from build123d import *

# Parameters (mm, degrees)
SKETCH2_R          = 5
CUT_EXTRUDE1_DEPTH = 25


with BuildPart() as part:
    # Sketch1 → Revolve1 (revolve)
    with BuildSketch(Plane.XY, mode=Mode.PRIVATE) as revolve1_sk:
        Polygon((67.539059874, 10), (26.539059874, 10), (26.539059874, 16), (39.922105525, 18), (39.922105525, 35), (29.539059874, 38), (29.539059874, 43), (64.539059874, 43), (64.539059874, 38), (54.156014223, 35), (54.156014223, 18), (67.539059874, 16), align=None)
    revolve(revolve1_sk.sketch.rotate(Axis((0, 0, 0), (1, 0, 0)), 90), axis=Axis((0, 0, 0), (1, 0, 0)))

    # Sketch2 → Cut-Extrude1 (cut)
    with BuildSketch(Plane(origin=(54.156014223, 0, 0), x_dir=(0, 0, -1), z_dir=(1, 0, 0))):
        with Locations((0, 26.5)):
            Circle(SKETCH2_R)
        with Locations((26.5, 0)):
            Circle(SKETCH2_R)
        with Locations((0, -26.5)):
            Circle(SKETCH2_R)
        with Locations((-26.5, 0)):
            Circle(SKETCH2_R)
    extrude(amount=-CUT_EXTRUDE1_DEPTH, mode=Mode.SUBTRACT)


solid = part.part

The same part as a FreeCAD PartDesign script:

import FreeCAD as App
import Part
import Sketcher

doc = App.newDocument("Part")
body = doc.addObject("PartDesign::Body", "Body")

sketch1 = doc.addObject("Sketcher::SketchObject", "Sketch")
body.addObject(sketch1)
sketch1.AttachmentSupport = (doc.XY_Plane, [""])
sketch1.MapMode = "FlatFace"
sketch1.addGeometry([
    Part.LineSegment(App.Vector(27, 10, 0), App.Vector(68, 10, 0)),
    Part.LineSegment(App.Vector(68, 10, 0), App.Vector(68, 16, 0)),
    Part.LineSegment(App.Vector(68, 16, 0), App.Vector(54, 18, 0)),
    Part.LineSegment(App.Vector(54, 18, 0), App.Vector(54, 35, 0)),
    Part.LineSegment(App.Vector(54, 35, 0), App.Vector(65, 38, 0)),
    Part.LineSegment(App.Vector(65, 38, 0), App.Vector(65, 43, 0)),
    Part.LineSegment(App.Vector(65, 43, 0), App.Vector(30, 43, 0)),
    Part.LineSegment(App.Vector(30, 43, 0), App.Vector(30, 38, 0)),
    Part.LineSegment(App.Vector(30, 38, 0), App.Vector(40, 35, 0)),
    Part.LineSegment(App.Vector(40, 35, 0), App.Vector(40, 18, 0)),
    Part.LineSegment(App.Vector(40, 18, 0), App.Vector(27, 16, 0)),
    Part.LineSegment(App.Vector(27, 16, 0), App.Vector(27, 10, 0)),
], False)
sketch1.addConstraint([
    Sketcher.Constraint("Coincident", 0, 2, 1, 1),
    Sketcher.Constraint("Coincident", 1, 2, 2, 1),
    Sketcher.Constraint("Coincident", 2, 2, 3, 1),
    Sketcher.Constraint("Coincident", 3, 2, 4, 1),
    Sketcher.Constraint("Coincident", 4, 2, 5, 1),
    Sketcher.Constraint("Coincident", 5, 2, 6, 1),
    Sketcher.Constraint("Coincident", 6, 2, 7, 1),
    Sketcher.Constraint("Coincident", 7, 2, 8, 1),
    Sketcher.Constraint("Coincident", 8, 2, 9, 1),
    Sketcher.Constraint("Coincident", 9, 2, 10, 1),
    Sketcher.Constraint("Coincident", 10, 2, 11, 1),
    Sketcher.Constraint("Coincident", 11, 2, 0, 1),
    Sketcher.Constraint("Horizontal", 0),
    Sketcher.Constraint("Vertical", 1),
    Sketcher.Constraint("Vertical", 3),
    Sketcher.Constraint("Vertical", 5),
    Sketcher.Constraint("Horizontal", 6),
    Sketcher.Constraint("Vertical", 7),
    Sketcher.Constraint("Vertical", 9),
    Sketcher.Constraint("Vertical", 11),
    Sketcher.Constraint("Horizontal", 4, 2, 7, 2),
    Sketcher.Constraint("Horizontal", 3, 2, 8, 2),
    Sketcher.Constraint("Horizontal", 2, 2, 9, 2),
    Sketcher.Constraint("Horizontal", 1, 2, 10, 2),
    Sketcher.Constraint("Equal", 4, 8),
    Sketcher.Constraint("Equal", 2, 10),
    Sketcher.Constraint("DistanceX", 0, 1, 0, 2, 41.0),
    Sketcher.Constraint("DistanceX", 6, 2, 6, 1, 35.0),
    Sketcher.Constraint("DistanceY", 1, 1, 1, 2, 6.0),
    Sketcher.Constraint("DistanceY", 3, 1, 3, 2, 17.0),
    Sketcher.Constraint("DistanceY", 5, 1, 5, 2, 5.0),
    Sketcher.Constraint("DistanceY", -1, 1, 0, 2, 10.0),
    Sketcher.Constraint("DistanceY", -1, 1, 2, 2, 18.0),
    Sketcher.Constraint("DistanceY", -1, 1, 4, 2, 38.0),
    Sketcher.Constraint("Distance", 4, 10.807758),
    Sketcher.Constraint("DistanceX", -1, 1, 0, 2, 67.53906),
])
revolution = doc.addObject("PartDesign::Revolution", "Revolution")
body.addObject(revolution)
revolution.Profile = sketch1
revolution.ReferenceAxis = (sketch1, ["H_Axis"])
revolution.Angle = 360

sketch2 = doc.addObject("Sketcher::SketchObject", "Sketch001")
body.addObject(sketch2)
sketch2.AttachmentSupport = (doc.YZ_Plane, [""])
sketch2.MapMode = "FlatFace"
sketch2.AttachmentOffset = App.Placement(App.Vector(0, 0, 54.156014), App.Rotation())
sketch2.addGeometry([
    Part.Circle(App.Vector(26, 0, 0), App.Vector(0, 0, 1), 5),
    Part.Circle(App.Vector(0, -26, 0), App.Vector(0, 0, 1), 5),
    Part.Circle(App.Vector(-26, 0, 0), App.Vector(0, 0, 1), 5),
    Part.Circle(App.Vector(0, 26, 0), App.Vector(0, 0, 1), 5),
], False)
sketch2.addConstraint([
    Sketcher.Constraint("Equal", 0, 1),
    Sketcher.Constraint("Equal", 1, 2),
    Sketcher.Constraint("Equal", 2, 3),
    Sketcher.Constraint("Symmetric", 0, 3, 2, 3, -1, 1),
    Sketcher.Constraint("Symmetric", 1, 3, 3, 3, -1, 1),
    Sketcher.Constraint("PointOnObject", 0, 3, -1),
    Sketcher.Constraint("PointOnObject", 1, 3, -2),
    Sketcher.Constraint("Diameter", 0, 10.0),
    Sketcher.Constraint("DistanceX", 2, 3, 0, 3, 53.0),
    Sketcher.Constraint("DistanceY", 1, 3, 3, 3, 53.0),
])
pocket1 = doc.addObject("PartDesign::Pocket", "Pocket")
body.addObject(pocket1)
pocket1.Profile = sketch2
pocket1.Length = 25

doc.recompute()
